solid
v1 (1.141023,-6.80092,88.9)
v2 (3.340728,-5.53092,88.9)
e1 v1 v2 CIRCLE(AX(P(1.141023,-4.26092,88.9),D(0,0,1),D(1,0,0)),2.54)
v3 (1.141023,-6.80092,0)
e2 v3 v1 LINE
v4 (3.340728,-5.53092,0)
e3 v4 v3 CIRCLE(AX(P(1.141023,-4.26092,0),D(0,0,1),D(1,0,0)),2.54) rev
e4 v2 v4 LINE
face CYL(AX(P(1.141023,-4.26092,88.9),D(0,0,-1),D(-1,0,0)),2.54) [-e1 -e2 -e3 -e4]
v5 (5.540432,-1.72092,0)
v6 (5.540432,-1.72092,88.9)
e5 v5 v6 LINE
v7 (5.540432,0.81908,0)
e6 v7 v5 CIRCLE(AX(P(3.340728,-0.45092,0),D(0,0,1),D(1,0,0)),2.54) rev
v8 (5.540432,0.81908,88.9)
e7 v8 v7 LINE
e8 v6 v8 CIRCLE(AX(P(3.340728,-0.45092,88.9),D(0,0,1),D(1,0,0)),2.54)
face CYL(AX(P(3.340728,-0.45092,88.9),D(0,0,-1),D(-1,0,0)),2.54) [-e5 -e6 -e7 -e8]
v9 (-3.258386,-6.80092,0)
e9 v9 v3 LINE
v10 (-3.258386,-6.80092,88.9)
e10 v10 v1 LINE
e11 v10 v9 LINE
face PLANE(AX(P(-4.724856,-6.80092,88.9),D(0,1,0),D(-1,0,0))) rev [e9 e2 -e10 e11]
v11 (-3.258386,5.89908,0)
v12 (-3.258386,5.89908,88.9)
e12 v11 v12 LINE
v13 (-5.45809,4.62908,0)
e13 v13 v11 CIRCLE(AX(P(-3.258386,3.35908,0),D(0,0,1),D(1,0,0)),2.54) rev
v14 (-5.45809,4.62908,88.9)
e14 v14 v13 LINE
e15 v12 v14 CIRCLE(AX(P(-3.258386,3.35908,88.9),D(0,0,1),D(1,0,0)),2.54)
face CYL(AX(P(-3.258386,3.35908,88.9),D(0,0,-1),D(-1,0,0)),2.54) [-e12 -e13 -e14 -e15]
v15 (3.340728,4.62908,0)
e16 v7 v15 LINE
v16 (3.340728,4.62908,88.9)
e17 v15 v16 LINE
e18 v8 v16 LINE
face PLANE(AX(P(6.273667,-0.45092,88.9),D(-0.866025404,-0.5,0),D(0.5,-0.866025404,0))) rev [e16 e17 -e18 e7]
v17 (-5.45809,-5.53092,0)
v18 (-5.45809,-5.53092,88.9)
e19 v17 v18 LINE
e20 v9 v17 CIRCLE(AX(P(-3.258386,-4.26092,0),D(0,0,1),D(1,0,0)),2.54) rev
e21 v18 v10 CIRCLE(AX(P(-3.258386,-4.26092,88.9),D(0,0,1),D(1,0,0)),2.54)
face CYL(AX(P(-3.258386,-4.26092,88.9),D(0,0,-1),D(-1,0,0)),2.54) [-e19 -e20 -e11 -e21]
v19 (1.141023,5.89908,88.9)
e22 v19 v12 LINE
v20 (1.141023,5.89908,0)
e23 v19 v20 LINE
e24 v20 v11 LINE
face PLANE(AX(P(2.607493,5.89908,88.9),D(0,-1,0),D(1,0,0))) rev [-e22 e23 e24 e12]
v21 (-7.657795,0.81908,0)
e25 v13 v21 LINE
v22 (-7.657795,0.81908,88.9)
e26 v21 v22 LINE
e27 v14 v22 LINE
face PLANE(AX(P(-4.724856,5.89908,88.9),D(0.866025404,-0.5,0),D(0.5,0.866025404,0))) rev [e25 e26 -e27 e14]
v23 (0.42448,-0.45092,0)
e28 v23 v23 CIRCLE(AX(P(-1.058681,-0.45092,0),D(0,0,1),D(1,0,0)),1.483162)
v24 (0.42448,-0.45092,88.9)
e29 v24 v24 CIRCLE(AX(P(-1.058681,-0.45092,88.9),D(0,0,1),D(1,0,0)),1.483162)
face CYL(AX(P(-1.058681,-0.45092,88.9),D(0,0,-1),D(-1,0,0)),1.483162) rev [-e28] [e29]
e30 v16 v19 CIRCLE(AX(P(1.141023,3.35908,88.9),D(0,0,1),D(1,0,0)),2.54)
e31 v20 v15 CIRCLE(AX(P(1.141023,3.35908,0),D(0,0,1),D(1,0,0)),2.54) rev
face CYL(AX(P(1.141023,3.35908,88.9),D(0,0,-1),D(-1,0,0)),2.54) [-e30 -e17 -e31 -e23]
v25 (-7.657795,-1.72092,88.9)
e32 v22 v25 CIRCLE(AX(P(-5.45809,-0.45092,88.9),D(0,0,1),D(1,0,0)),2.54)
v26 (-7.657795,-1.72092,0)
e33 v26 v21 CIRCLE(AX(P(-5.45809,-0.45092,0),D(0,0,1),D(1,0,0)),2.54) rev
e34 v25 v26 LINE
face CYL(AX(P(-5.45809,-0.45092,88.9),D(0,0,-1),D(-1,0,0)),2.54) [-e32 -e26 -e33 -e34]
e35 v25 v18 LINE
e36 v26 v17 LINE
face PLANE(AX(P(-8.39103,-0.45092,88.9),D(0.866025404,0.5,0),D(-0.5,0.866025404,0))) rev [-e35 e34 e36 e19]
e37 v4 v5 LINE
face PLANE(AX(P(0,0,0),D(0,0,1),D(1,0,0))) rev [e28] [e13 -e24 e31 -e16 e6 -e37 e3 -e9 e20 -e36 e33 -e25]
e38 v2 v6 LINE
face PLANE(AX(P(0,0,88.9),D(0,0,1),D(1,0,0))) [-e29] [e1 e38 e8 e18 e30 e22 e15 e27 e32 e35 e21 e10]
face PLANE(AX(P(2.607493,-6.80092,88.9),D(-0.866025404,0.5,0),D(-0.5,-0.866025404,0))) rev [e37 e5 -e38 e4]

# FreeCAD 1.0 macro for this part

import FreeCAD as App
import Part
import Sketcher
from FreeCAD import Vector
Q = App.Units.Quantity


def edges_at(feature, points):
    """Names of the edges that pass closest to the given points."""
    edges = feature.Shape.Edges
    near = lambda p: min(range(len(edges)), key=lambda i: edges[i].distToShape(Part.Vertex(*p))[0])
    return sorted({f"Edge{near(p) + 1}" for p in points})


def add_polygon(sketch, points):
    """Adds a closed chain of lines whose ends are joined by coincident constraints."""
    first, n = sketch.GeometryCount, len(points)
    for a, b in zip(points, points[1:] + points[:1]):
        sketch.addGeometry(Part.LineSegment(App.Vector(*a, 0), App.Vector(*b, 0)), False)
    for i in range(n):
        sketch.addConstraint(Sketcher.Constraint("Coincident", first + i, 2, first + (i + 1) % n, 1))

doc = App.newDocument("Part")
body = doc.addObject("PartDesign::Body", "Body")

sketch1 = doc.addObject("Sketcher::SketchObject", "Sketch")
body.addObject(sketch1)
sketch1.AttachmentSupport = (doc.XY_Plane, [""])
sketch1.MapMode = "FlatFace"
add_polygon(sketch1, [(6.273667, -0.45092), (2.607493, 5.89908), (-4.724856, 5.89908), (-8.39103, -0.45092), (-4.724856, -6.80092), (2.607493, -6.80092)])
sketch1.addGeometry(Part.Circle(Vector(-1.058681, -0.45092, 0), Vector(0, 0, 1), 1.483162), False)
sketch1.addConstraint([
    Sketcher.Constraint("Horizontal", 1),
    Sketcher.Constraint("Horizontal", 4),
    Sketcher.Constraint("Parallel", 0, 3),
    Sketcher.Constraint("Parallel", 2, 5),
    Sketcher.Constraint("Horizontal", 6, 3, 2, 2),
    Sketcher.Constraint("Horizontal", 2, 2, 5, 2),
    Sketcher.Constraint("Vertical", 1, 2, 3, 2),
    Sketcher.Constraint("Vertical", 0, 2, 4, 2),
    Sketcher.Constraint("Angle", 0, Q("120 deg")),
    Sketcher.Constraint("DistanceY", 3, 2, 1, 2, Q("0.5 in")),
    Sketcher.Constraint("Diameter", 6, Q("2.966323 mm")),
    Sketcher.Constraint("DistanceX", 1, 2, 1, 1, Q("7.332348 mm")),
    Sketcher.Constraint("DistanceX", 6, 3, -1, 1, Q("1.058681 mm")),
    Sketcher.Constraint("DistanceY", 6, 3, -1, 1, Q("0.45092 mm")),
    Sketcher.Constraint("DistanceX", 2, 2, -1, 1, Q("8.39103 mm")),
])
pad1 = doc.addObject("PartDesign::Pad", "Pad")
body.addObject(pad1)
pad1.Profile = sketch1
pad1.Length = Q("3.5 in")
doc.recompute()

fillet = doc.addObject("PartDesign::Fillet", "Fillet")
body.addObject(fillet)
fillet.Base = (pad1, edges_at(pad1, [
    (2.607, -6.801, 44.45),
    (-4.725, -6.801, 44.45),
    (-8.391, -0.451, 44.45),
    (-4.725, 5.899, 44.45),
    (2.607, 5.899, 44.45),
    (6.274, -0.451, 44.45),
]))
fillet.Radius = Q("0.1 in")

doc.recompute()
